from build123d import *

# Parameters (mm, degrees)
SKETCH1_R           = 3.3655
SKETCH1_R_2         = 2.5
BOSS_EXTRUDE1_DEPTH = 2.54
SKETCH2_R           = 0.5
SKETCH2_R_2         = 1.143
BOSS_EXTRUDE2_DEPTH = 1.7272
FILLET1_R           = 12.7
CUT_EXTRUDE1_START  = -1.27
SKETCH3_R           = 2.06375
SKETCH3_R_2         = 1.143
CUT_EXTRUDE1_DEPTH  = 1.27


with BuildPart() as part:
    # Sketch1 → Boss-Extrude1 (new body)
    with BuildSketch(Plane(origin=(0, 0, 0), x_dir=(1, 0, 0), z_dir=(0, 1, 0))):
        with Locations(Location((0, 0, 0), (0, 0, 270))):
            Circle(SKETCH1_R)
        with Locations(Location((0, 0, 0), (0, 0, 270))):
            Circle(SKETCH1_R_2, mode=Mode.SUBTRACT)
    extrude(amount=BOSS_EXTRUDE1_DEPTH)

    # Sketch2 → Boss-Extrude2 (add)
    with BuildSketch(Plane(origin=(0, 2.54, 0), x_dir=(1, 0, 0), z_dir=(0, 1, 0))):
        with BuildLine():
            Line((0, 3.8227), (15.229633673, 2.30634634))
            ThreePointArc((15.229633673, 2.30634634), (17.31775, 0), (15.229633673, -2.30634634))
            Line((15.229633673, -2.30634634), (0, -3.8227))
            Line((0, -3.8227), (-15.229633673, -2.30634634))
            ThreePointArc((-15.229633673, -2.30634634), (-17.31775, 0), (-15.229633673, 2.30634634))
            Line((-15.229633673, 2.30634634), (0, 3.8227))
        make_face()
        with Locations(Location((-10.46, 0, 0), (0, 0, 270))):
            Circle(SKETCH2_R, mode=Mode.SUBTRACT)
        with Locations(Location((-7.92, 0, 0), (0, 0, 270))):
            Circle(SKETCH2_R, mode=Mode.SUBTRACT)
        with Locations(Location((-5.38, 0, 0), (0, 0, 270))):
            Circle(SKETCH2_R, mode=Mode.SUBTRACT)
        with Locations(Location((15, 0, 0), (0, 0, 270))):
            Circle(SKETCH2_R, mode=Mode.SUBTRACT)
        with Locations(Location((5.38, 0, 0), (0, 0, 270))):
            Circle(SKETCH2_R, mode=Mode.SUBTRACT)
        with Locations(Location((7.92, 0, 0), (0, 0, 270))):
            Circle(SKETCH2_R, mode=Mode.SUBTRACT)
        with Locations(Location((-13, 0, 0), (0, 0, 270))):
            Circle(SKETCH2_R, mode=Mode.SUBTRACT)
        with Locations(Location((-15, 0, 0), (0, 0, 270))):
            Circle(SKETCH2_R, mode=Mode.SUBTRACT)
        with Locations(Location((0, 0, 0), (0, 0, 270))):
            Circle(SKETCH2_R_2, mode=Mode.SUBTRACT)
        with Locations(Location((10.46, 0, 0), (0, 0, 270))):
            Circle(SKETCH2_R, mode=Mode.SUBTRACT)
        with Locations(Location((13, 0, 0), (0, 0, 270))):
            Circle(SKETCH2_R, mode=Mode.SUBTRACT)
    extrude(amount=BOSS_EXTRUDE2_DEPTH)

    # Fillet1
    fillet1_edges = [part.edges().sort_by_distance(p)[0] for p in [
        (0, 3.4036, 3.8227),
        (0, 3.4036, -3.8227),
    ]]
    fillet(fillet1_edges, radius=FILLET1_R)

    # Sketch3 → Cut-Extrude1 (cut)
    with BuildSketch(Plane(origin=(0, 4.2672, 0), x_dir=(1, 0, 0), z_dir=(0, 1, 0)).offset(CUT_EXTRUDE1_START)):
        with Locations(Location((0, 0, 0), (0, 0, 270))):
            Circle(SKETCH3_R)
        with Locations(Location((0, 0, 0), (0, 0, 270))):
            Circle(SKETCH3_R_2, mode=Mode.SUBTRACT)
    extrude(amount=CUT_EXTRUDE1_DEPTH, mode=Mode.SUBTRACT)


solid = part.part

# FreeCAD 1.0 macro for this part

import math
import FreeCAD as App
import Part
import Sketcher
Q = App.Units.Quantity


def edges_at(feature, points):
    """Names of the edges that pass closest to the given points."""
    edges = feature.Shape.Edges
    near = lambda p: min(range(len(edges)), key=lambda i: edges[i].distToShape(Part.Vertex(*p))[0])
    return sorted({f"Edge{near(p) + 1}" for p in points})

doc = App.newDocument("Part")
body = doc.addObject("PartDesign::Body", "Body")

sketch1 = doc.addObject("Sketcher::SketchObject", "Sketch")
body.addObject(sketch1)
sketch1.AttachmentSupport = (doc.XZ_Plane, [""])
sketch1.MapMode = "FlatFace"
sketch1.addGeometry([
    Part.Circle(App.Vector(0, 0, 0), App.Vector(0, 0, 1), 3.3655),
    Part.Circle(App.Vector(0, 0, 0), App.Vector(0, 0, 1), 2.5),
], False)
sketch1.addConstraint([
    Sketcher.Constraint("Coincident", 0, 3, -1, 1),
    Sketcher.Constraint("Coincident", 1, 3, -1, 1),
    Sketcher.Constraint("Diameter", 0, Q("0.265 in")),
    Sketcher.Constraint("Diameter", 1, Q("5 mm")),
])
pad1 = doc.addObject("PartDesign::Pad", "Pad")
body.addObject(pad1)
pad1.Profile = sketch1
pad1.Length = Q("0.1 in")
pad1.Reversed = True

sketch2 = doc.addObject("Sketcher::SketchObject", "Sketch001")
body.addObject(sketch2)
sketch2.AttachmentSupport = (doc.XZ_Plane, [""])
sketch2.MapMode = "FlatFace"
sketch2.AttachmentOffset = App.Placement(App.Vector(0, 0, -0.1 * 25.4), App.Rotation())
sketch2.addGeometry([
    Part.LineSegment(App.Vector(15.229634, -2.306346, 0), App.Vector(0, -3.8227, 0)),
    Part.LineSegment(App.Vector(0, -3.8227, 0), App.Vector(-15.229634, -2.306346, 0)),
    Part.ArcOfCircle(Part.Circle(App.Vector(-15, 0, 0), App.Vector(0, 0, 1), 2.31775), math.radians(95.685972), math.radians(264.314028)),
    Part.LineSegment(App.Vector(-15.229634, 2.306346, 0), App.Vector(0, 3.8227, 0)),
    Part.LineSegment(App.Vector(0, 3.8227, 0), App.Vector(15.229634, 2.306346, 0)),
    Part.ArcOfCircle(Part.Circle(App.Vector(15, 0, 0), App.Vector(0, 0, 1), 2.31775), math.radians(-84.314028), math.radians(84.314028)),
    Part.Circle(App.Vector(15, 0, 0), App.Vector(0, 0, 1), 0.5),
    Part.Circle(App.Vector(13, 0, 0), App.Vector(0, 0, 1), 0.5),
    Part.Circle(App.Vector(10.46, 0, 0), App.Vector(0, 0, 1), 0.5),
    Part.Circle(App.Vector(7.92, 0, 0), App.Vector(0, 0, 1), 0.5),
    Part.Circle(App.Vector(5.38, 0, 0), App.Vector(0, 0, 1), 0.5),
    Part.Circle(App.Vector(-5.38, 0, 0), App.Vector(0, 0, 1), 0.5),
    Part.Circle(App.Vector(-7.92, 0, 0), App.Vector(0, 0, 1), 0.5),
    Part.Circle(App.Vector(-10.46, 0, 0), App.Vector(0, 0, 1), 0.5),
    Part.Circle(App.Vector(-13, 0, 0), App.Vector(0, 0, 1), 0.5),
    Part.Circle(App.Vector(-15, 0, 0), App.Vector(0, 0, 1), 0.5),
    Part.Circle(App.Vector(0, 0, 0), App.Vector(0, 0, 1), 1.143),
], False)
sketch2.addConstraint([
    Sketcher.Constraint("Coincident", 0, 2, 1, 1),
    Sketcher.Constraint("Tangent", 1, 2, 2, 2),
    Sketcher.Constraint("Tangent", 2, 1, 3, 1),
    Sketcher.Constraint("Coincident", 3, 2, 4, 1),
    Sketcher.Constraint("Tangent", 4, 2, 5, 2),
    Sketcher.Constraint("Tangent", 5, 1, 0, 1),
    Sketcher.Constraint("Coincident", 16, 3, -1, 1),
    Sketcher.Constraint("Coincident", 6, 3, 5, 3),
    Sketcher.Constraint("Coincident", 15, 3, 2, 3),
    Sketcher.Constraint("Equal", 2, 5),
    Sketcher.Constraint("Equal", 6, 7),
    Sketcher.Constraint("Equal", 7, 8),
    Sketcher.Constraint("Equal", 8, 9),
    Sketcher.Constraint("Equal", 9, 10),
    Sketcher.Constraint("Equal", 10, 11),
    Sketcher.Constraint("Equal", 11, 12),
    Sketcher.Constraint("Equal", 12, 13),
    Sketcher.Constraint("Equal", 13, 14),
    Sketcher.Constraint("Equal", 14, 15),
    Sketcher.Constraint("Symmetric", 2, 3, 5, 3, -1, 1),
    Sketcher.Constraint("Symmetric", 10, 3, 11, 3, -1, 1),
    Sketcher.Constraint("Symmetric", 9, 3, 12, 3, -1, 1),
    Sketcher.Constraint("Symmetric", 8, 3, 13, 3, -1, 1),
    Sketcher.Constraint("Symmetric", 7, 3, 14, 3, -1, 1),
    Sketcher.Constraint("Symmetric", 0, 2, 3, 2, -1, 1),
    Sketcher.Constraint("Symmetric", 2, 1, 4, 2, -2),
    Sketcher.Constraint("PointOnObject", 7, 3, -1),
    Sketcher.Constraint("PointOnObject", 8, 3, -1),
    Sketcher.Constraint("PointOnObject", 9, 3, -1),
    Sketcher.Constraint("PointOnObject", 10, 3, -1),
    Sketcher.Constraint("Diameter", 16, Q("0.09 in")),
    Sketcher.Constraint("DistanceX", 8, 3, 7, 3, Q("0.1 in")),
    Sketcher.Constraint("DistanceX", 9, 3, 8, 3, Q("0.1 in")),
    Sketcher.Constraint("DistanceX", 10, 3, 9, 3, Q("0.1 in")),
    Sketcher.Constraint("Diameter", 6, Q("1 mm")),
    Sketcher.Constraint("Radius", 2, Q("2.31775 mm")),
    Sketcher.Constraint("DistanceY", 0, 2, 3, 2, Q("0.301 in")),
    Sketcher.Constraint("DistanceX", 2, 3, -1, 1, Q("15 mm")),
    Sketcher.Constraint("DistanceX", -1, 1, 7, 3, Q("13 mm")),
])
pad2 = doc.addObject("PartDesign::Pad", "Pad001")
body.addObject(pad2)
pad2.Profile = sketch2
pad2.Length = Q("0.068 in")
pad2.Reversed = True
doc.recompute()

fillet = doc.addObject("PartDesign::Fillet", "Fillet")
body.addObject(fillet)
fillet.Base = (pad2, edges_at(pad2, [(0, 3.404, 3.823), (0, 3.404, -3.823)]))
fillet.Radius = Q("0.5 in")

sketch3 = doc.addObject("Sketcher::SketchObject", "Sketch002")
body.addObject(sketch3)
sketch3.AttachmentSupport = (doc.XZ_Plane, [""])
sketch3.MapMode = "FlatFace"
sketch3.AttachmentOffset = App.Placement(App.Vector(0, 0, -0.118 * 25.4), App.Rotation())
sketch3.addGeometry([
    Part.Circle(App.Vector(0, 0, 0), App.Vector(0, 0, 1), 2.06375),
    Part.Circle(App.Vector(0, 0, 0), App.Vector(0, 0, 1), 1.143),
], False)
sketch3.addConstraint([
    Sketcher.Constraint("Coincident", 0, 3, -1, 1),
    Sketcher.Constraint("Coincident", 1, 3, -1, 1),
    Sketcher.Constraint("Diameter", 1, Q("0.09 in")),
    Sketcher.Constraint("Diameter", 0, Q("0.1625 in")),
])
pocket1 = doc.addObject("PartDesign::Pocket", "Pocket")
body.addObject(pocket1)
pocket1.Profile = sketch3
pocket1.Length = Q("0.05 in")

doc.recompute()
